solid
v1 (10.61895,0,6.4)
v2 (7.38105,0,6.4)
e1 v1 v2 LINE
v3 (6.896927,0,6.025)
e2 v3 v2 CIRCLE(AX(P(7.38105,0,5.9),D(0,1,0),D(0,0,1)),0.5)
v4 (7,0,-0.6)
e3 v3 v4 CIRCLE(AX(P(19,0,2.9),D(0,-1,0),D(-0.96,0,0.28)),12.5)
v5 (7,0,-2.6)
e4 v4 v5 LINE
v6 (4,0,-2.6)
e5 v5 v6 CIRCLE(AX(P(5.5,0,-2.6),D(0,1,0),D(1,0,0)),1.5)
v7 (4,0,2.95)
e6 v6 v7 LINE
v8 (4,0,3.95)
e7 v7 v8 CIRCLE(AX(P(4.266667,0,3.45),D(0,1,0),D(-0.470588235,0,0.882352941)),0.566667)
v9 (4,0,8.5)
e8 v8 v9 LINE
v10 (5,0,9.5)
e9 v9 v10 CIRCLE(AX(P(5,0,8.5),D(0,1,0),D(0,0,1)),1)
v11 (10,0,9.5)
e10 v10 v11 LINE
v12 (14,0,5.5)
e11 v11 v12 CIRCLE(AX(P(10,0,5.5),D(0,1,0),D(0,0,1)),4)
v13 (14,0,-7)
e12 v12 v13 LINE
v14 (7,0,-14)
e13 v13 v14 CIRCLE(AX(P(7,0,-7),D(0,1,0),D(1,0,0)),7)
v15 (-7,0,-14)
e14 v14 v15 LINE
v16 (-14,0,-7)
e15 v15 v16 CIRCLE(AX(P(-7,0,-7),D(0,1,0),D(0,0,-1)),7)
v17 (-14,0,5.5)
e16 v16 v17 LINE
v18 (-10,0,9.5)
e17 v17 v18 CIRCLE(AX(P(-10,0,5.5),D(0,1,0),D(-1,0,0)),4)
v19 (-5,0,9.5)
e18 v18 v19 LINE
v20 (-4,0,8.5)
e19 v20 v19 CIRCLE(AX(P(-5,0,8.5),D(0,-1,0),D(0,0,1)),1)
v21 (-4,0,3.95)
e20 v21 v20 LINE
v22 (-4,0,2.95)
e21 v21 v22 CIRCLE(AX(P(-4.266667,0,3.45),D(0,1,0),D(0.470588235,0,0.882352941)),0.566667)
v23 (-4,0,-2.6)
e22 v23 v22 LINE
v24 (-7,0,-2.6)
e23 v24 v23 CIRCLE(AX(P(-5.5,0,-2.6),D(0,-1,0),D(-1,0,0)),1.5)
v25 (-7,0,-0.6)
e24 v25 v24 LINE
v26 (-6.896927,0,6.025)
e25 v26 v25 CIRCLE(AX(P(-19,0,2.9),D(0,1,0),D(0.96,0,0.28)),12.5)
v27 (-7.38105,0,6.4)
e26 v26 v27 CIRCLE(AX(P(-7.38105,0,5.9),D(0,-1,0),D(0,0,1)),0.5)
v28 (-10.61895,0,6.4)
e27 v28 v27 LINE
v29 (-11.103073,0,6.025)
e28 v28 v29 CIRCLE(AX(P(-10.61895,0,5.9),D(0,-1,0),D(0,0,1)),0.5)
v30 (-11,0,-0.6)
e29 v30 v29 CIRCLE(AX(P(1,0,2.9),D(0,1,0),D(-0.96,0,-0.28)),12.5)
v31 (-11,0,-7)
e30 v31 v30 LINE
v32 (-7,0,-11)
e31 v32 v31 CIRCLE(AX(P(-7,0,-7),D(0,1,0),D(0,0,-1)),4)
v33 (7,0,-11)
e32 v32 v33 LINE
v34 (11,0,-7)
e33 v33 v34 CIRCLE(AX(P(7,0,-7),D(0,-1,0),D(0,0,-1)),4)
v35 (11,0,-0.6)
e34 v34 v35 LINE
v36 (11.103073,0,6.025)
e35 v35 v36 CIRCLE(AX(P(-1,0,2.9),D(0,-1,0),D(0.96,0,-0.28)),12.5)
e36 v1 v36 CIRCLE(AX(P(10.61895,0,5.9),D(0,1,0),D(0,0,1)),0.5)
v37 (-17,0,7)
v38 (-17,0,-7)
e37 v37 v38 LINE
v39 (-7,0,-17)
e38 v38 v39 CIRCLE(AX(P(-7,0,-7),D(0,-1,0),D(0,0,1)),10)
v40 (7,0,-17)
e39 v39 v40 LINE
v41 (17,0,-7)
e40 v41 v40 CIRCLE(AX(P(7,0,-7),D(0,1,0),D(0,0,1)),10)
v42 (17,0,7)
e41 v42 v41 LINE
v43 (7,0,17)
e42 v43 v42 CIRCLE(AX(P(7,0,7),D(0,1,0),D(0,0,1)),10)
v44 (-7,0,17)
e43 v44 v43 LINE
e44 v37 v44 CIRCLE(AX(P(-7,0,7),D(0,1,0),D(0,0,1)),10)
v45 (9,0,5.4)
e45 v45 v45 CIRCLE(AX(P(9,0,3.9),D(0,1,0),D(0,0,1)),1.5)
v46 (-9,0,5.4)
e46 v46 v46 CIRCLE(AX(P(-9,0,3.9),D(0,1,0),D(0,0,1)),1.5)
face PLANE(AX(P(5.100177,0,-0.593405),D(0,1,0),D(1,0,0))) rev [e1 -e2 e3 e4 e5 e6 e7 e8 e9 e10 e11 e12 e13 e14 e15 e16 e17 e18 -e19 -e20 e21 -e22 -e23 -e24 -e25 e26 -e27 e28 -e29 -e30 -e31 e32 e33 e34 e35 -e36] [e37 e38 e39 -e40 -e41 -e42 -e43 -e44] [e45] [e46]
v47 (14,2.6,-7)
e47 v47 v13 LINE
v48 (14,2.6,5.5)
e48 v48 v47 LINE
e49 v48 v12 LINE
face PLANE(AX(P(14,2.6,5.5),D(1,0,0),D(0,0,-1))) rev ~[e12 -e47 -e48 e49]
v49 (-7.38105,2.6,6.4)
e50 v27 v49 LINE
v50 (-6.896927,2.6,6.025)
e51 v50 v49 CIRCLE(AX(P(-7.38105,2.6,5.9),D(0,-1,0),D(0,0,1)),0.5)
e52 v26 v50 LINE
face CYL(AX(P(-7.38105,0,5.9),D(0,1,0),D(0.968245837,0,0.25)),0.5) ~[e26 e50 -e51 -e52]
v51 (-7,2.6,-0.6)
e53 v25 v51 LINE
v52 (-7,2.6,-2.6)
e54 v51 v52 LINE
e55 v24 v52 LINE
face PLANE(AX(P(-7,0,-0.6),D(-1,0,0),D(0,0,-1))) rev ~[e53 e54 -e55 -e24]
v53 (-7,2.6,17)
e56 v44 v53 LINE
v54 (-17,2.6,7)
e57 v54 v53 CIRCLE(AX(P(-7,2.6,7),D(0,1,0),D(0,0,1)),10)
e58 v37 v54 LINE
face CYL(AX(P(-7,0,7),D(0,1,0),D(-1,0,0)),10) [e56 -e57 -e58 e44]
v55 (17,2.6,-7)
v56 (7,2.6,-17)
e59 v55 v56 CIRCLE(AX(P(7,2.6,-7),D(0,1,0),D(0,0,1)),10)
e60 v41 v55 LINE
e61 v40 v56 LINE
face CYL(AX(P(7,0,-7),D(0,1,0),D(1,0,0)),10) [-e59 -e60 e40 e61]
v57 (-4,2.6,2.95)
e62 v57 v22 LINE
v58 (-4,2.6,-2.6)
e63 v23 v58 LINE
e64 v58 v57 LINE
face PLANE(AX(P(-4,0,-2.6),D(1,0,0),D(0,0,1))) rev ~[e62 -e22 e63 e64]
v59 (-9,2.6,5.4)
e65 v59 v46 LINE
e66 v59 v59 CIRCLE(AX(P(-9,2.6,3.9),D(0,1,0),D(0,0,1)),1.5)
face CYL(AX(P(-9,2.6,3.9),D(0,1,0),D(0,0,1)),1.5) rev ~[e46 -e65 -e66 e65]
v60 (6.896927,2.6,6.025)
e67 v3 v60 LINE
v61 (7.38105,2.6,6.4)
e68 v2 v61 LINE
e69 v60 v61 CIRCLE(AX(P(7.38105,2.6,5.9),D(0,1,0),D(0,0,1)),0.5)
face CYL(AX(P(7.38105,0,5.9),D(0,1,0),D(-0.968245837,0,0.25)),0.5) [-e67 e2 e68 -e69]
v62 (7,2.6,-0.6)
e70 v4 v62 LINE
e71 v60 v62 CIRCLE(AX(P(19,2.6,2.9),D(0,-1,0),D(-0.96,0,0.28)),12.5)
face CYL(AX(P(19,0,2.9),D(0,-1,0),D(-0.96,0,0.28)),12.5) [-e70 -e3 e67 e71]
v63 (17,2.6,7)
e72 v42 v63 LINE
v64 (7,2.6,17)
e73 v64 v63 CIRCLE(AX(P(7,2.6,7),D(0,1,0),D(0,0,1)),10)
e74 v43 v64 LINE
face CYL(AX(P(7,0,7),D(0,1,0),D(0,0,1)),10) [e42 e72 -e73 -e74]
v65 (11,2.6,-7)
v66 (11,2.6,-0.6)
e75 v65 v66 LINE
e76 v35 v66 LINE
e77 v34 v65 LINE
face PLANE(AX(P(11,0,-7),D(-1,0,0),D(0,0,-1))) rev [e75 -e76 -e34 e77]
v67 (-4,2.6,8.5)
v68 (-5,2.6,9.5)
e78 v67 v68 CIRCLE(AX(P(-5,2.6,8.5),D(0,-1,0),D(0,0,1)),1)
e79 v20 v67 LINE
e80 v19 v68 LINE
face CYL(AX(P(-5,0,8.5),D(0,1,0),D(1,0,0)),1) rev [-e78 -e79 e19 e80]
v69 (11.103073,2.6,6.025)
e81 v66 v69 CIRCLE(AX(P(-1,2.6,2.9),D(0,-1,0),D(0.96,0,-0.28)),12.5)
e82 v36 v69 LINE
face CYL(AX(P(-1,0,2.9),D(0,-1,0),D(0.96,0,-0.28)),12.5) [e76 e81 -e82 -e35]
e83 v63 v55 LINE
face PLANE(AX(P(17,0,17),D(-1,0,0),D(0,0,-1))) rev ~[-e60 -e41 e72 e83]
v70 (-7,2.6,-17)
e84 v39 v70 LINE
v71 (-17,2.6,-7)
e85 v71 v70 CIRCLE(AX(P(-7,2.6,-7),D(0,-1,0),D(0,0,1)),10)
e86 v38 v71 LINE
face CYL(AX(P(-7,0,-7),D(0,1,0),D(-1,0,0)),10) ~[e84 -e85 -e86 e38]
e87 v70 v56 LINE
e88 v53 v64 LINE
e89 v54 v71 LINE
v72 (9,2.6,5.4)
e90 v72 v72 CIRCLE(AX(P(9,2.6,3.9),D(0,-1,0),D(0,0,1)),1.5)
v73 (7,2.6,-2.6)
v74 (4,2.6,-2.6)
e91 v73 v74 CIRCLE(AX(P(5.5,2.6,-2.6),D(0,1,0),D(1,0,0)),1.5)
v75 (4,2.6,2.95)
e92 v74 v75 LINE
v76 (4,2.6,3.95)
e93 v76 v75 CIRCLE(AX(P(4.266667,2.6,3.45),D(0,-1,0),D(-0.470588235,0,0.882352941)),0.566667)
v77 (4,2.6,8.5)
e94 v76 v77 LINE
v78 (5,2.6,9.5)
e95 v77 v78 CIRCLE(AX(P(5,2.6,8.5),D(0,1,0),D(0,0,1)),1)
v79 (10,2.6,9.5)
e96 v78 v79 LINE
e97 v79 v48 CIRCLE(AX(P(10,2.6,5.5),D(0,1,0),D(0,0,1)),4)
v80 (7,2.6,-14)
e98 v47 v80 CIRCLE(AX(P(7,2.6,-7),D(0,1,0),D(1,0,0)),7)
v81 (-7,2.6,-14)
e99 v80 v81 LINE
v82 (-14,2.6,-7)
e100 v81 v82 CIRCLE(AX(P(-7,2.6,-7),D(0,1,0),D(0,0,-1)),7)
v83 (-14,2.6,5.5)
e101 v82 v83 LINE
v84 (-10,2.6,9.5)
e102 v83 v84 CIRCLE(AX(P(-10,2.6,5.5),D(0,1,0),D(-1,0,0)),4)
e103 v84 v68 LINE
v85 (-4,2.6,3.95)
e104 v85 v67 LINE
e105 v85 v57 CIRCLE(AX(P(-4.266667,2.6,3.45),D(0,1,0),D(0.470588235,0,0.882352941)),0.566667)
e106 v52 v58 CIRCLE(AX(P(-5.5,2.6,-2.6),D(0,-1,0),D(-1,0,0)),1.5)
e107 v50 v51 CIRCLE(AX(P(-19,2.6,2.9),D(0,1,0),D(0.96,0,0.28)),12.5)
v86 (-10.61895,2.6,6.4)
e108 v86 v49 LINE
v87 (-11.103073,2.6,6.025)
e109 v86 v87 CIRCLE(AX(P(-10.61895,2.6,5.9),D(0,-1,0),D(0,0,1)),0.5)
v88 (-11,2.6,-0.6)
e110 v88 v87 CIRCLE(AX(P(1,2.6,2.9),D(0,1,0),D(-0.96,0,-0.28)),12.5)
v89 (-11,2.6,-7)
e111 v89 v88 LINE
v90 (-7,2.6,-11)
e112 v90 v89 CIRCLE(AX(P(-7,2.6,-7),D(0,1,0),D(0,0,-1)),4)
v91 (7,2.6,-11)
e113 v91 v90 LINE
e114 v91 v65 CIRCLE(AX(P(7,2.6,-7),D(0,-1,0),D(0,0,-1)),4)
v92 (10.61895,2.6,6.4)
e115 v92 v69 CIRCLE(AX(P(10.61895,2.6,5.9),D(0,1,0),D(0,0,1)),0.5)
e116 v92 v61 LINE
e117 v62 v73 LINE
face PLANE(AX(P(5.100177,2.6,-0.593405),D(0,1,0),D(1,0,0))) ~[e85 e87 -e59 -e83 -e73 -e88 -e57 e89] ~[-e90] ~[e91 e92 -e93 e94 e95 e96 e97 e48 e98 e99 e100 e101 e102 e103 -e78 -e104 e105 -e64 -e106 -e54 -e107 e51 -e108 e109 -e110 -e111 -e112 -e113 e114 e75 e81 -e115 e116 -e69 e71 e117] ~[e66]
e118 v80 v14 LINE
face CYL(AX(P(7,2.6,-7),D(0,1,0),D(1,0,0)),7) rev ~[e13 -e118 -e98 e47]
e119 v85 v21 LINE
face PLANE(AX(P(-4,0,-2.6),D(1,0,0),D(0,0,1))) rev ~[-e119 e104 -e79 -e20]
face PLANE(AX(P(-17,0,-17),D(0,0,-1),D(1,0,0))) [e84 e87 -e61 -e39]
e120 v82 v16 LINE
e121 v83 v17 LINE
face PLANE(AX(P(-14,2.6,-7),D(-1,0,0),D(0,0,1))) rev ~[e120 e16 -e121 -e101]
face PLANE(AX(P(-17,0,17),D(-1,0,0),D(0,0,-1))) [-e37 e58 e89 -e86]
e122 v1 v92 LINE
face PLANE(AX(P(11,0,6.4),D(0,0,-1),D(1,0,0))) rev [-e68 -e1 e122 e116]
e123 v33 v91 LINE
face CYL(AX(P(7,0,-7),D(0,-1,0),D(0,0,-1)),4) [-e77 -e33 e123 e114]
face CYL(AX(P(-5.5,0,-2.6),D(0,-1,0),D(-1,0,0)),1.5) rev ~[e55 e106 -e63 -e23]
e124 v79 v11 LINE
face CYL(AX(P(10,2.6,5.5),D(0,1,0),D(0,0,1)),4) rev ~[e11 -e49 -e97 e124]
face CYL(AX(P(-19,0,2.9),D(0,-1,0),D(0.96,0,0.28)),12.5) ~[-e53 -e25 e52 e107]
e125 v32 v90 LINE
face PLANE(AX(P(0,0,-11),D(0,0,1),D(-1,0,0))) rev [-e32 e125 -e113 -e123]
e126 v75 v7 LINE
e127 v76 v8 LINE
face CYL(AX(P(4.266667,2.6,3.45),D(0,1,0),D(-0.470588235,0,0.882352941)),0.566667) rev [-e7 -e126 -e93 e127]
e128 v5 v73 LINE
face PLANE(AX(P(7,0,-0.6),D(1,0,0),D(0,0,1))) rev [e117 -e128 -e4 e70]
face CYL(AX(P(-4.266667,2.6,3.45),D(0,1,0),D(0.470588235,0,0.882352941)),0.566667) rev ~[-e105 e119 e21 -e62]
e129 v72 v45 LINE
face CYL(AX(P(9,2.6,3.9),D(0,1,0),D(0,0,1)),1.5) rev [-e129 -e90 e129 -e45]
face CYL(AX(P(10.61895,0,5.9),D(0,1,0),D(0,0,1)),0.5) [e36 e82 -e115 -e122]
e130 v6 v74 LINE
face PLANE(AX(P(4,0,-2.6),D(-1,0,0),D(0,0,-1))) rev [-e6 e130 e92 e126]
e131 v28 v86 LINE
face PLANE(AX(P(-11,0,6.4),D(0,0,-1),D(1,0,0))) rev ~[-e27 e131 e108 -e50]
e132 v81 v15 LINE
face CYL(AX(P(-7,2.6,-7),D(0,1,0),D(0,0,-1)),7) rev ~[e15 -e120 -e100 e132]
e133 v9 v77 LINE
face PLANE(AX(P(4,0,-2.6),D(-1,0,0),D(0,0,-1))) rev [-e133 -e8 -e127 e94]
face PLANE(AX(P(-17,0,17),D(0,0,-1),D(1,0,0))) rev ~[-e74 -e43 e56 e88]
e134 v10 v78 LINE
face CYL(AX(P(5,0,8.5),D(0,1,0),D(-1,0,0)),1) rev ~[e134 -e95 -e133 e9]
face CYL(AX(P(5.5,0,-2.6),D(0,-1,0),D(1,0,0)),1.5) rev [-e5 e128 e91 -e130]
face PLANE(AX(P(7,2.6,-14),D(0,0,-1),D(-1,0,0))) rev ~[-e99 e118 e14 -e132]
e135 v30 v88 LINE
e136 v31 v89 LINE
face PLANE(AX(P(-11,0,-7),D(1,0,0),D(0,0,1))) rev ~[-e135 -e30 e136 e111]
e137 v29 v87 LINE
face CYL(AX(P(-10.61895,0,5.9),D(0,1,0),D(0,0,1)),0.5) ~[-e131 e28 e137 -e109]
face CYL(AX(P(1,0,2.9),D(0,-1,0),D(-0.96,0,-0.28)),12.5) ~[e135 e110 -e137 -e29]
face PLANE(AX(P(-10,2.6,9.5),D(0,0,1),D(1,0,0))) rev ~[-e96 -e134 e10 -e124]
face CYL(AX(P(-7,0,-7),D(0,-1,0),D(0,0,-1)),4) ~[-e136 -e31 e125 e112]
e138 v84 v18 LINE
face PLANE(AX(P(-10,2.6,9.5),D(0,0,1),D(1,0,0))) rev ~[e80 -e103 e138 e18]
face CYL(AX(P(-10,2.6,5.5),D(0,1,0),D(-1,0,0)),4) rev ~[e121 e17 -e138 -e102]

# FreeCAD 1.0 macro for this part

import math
import FreeCAD as App
import Part
import Sketcher

V = App.Vector


def edges_at(feature, points):
    """Names of the edges that pass closest to the given points."""
    edges = feature.Shape.Edges
    near = lambda p: min(range(len(edges)), key=lambda i: edges[i].distToShape(Part.Vertex(*p))[0])
    return sorted({f"Edge{near(p) + 1}" for p in points})


def add_polygon(sketch, points):
    """Adds a closed chain of lines whose ends are joined by coincident constraints."""
    first, n = sketch.GeometryCount, len(points)
    for a, b in zip(points, points[1:] + points[:1]):
        sketch.addGeometry(Part.LineSegment(App.Vector(*a, 0), App.Vector(*b, 0)), False)
    for i in range(n):
        sketch.addConstraint(Sketcher.Constraint("Coincident", first + i, 2, first + (i + 1) % n, 1))

doc = App.newDocument("Part")
body = doc.addObject("PartDesign::Body", "Body")

sketch1 = body.newObject("Sketcher::SketchObject", "Sketch")
sketch1.AttachmentSupport = (doc.getObject("XZ_Plane"), [""])
sketch1.MapMode = "FlatFace"
add_polygon(sketch1, [(-17, -17), (-17, 17), (17, 17), (17, -17)])
sketch1.addConstraint([
    Sketcher.Constraint("Vertical", 0),
    Sketcher.Constraint("Horizontal", 1),
    Sketcher.Constraint("Vertical", 2),
    Sketcher.Constraint("Horizontal", 3),
    Sketcher.Constraint("Symmetric", 0, 2, 2, 2, -1, 1),
    Sketcher.Constraint("Equal", 3, 0),
    Sketcher.Constraint("DistanceX", 1, 1, 1, 2, 34.0),
])
pad1 = body.newObject("PartDesign::Pad", "Pad")
pad1.Profile = sketch1
pad1.Length = 2.6
pad1.Reversed = True
doc.recompute()

fillet = body.newObject("PartDesign::Fillet", "Fillet")
fillet.Base = (pad1, edges_at(pad1, [
    (17, 1.3, 17),
    (-17, 1.3, 17),
    (-17, 1.3, -17),
    (17, 1.3, -17),
]))
fillet.Radius = 10

sketch2 = body.newObject("Sketcher::SketchObject", "Sketch001")
sketch2.AttachmentSupport = (doc.getObject("XZ_Plane"), [""])
sketch2.MapMode = "FlatFace"
sketch2.AttachmentOffset = App.Placement(V(0, 0, -2.6), App.Rotation())
sketch2.addGeometry([
    Part.LineSegment(V(-10, 9.5, 0), V(10, 9.5, 0)),
    Part.ArcOfCircle(Part.Circle(V(10, 5.5, 0), V(0, 0, 1), 4), math.radians(0), math.radians(90)),
    Part.LineSegment(V(14, 5.5, 0), V(14, -7, 0)),
    Part.ArcOfCircle(Part.Circle(V(7, -7, 0), V(0, 0, 1), 7), math.radians(-90), math.radians(0)),
    Part.LineSegment(V(7, -14, 0), V(-7, -14, 0)),
    Part.ArcOfCircle(Part.Circle(V(-7, -7, 0), V(0, 0, 1), 7), math.radians(-180), math.radians(-90)),
    Part.LineSegment(V(-14, -7, 0), V(-14, 5.5, 0)),
    Part.ArcOfCircle(Part.Circle(V(-10, 5.5, 0), V(0, 0, 1), 4), math.radians(90), math.radians(180)),
], False)
sketch2.addConstraint([
    Sketcher.Constraint("Tangent", 0, 2, 1, 2),
    Sketcher.Constraint("Tangent", 1, 1, 2, 1),
    Sketcher.Constraint("Tangent", 2, 2, 3, 2),
    Sketcher.Constraint("Tangent", 3, 1, 4, 1),
    Sketcher.Constraint("Tangent", 4, 2, 5, 2),
    Sketcher.Constraint("Tangent", 5, 1, 6, 1),
    Sketcher.Constraint("Tangent", 6, 2, 7, 2),
    Sketcher.Constraint("Tangent", 7, 1, 0, 1),
    Sketcher.Constraint("Horizontal", 0),
    Sketcher.Constraint("Vertical", 2),
    Sketcher.Constraint("Horizontal", 4),
    Sketcher.Constraint("Vertical", 6),
    Sketcher.Constraint("Equal", 3, 5),
    Sketcher.Constraint("Equal", 1, 7),
    Sketcher.Constraint("Radius", 1, 4.0),
    Sketcher.Constraint("Radius", 3, 7.0),
    Sketcher.Constraint("DistanceX", 0, 1, 0, 2, 20.0),
    Sketcher.Constraint("DistanceY", 2, 2, 2, 1, 12.5),
    Sketcher.Constraint("DistanceX", -1, 1, 1, 3, 10.0),
    Sketcher.Constraint("DistanceY", 3, 3, -1, 1, 7.0),
])
pocket1 = body.newObject("PartDesign::Pocket", "Pocket")
pocket1.Profile = sketch2
pocket1.Type = "ThroughAll"
pocket1.Reversed = True

sketch3 = body.newObject("Sketcher::SketchObject", "Sketch002")
sketch3.AttachmentSupport = (doc.getObject("XZ_Plane"), [""])
sketch3.MapMode = "FlatFace"
sketch3.addGeometry([
    Part.LineSegment(V(-4, -2.6, 0), V(-4, 9.5, 0)),
    Part.LineSegment(V(-4, 9.5, 0), V(0, 9.5, 0)),
    Part.LineSegment(V(0, 9.5, 0), V(0, -11, 0)),
    Part.LineSegment(V(0, -11, 0), V(-7, -11, 0)),
    Part.ArcOfCircle(Part.Circle(V(-7, -7, 0), V(0, 0, 1), 4), math.radians(180), math.radians(270)),
    Part.LineSegment(V(-11, -7, 0), V(-11, -0.6, 0)),
    Part.ArcOfCircle(Part.Circle(V(1, 2.9, 0), V(0, 0, 1), 12.5), math.radians(164), math.radians(196)),
    Part.LineSegment(V(-11, 6.4, 0), V(-7, 6.4, 0)),
    Part.ArcOfCircle(Part.Circle(V(-19, 2.9, 0), V(0, 0, 1), 12.5), math.radians(-16), math.radians(16)),
    Part.LineSegment(V(-7, -0.6, 0), V(-7, -2.6, 0)),
    Part.ArcOfCircle(Part.Circle(V(-5.5, -2.6, 0), V(0, 0, 1), 1.5), math.radians(180), math.radians(360)),
], False)
sketch3.addConstraint([
    Sketcher.Constraint("Coincident", 0, 2, 1, 1),
    Sketcher.Constraint("Coincident", 1, 2, 2, 1),
    Sketcher.Constraint("Coincident", 2, 2, 3, 1),
    Sketcher.Constraint("Tangent", 3, 2, 4, 2),
    Sketcher.Constraint("Tangent", 4, 1, 5, 1),
    Sketcher.Constraint("Coincident", 5, 2, 6, 2),
    Sketcher.Constraint("Coincident", 6, 1, 7, 1),
    Sketcher.Constraint("Coincident", 7, 2, 8, 2),
    Sketcher.Constraint("Coincident", 8, 1, 9, 1),
    Sketcher.Constraint("Tangent", 9, 2, 10, 1),
    Sketcher.Constraint("Tangent", 10, 2, 0, 1),
    Sketcher.Constraint("Vertical", 0),
    Sketcher.Constraint("Horizontal", 1),
    Sketcher.Constraint("Vertical", 2),
    Sketcher.Constraint("Horizontal", 3),
    Sketcher.Constraint("Vertical", 5),
    Sketcher.Constraint("Horizontal", 7),
    Sketcher.Constraint("Vertical", 9),
    Sketcher.Constraint("Equal", 6, 8),
    Sketcher.Constraint("PointOnObject", 1, 2, -2),
    Sketcher.Constraint("Horizontal", 6, 3, 8, 3),
    Sketcher.Constraint("Horizontal", 5, 2, 8, 1),
    Sketcher.Constraint("Vertical", 5, 2, 6, 1),
    Sketcher.Constraint("Vertical", 3, 2, 7, 2),
    Sketcher.Constraint("Equal", 1, 7),
    Sketcher.Constraint("Radius", 4, 4.0),
    Sketcher.Constraint("Radius", 6, 12.5),
    Sketcher.Constraint("Radius", 10, 1.5),
    Sketcher.Constraint("DistanceY", 9, 2, 9, 1, 2.0),
    Sketcher.Constraint("DistanceY", 0, 1, 0, 2, 12.1),
    Sketcher.Constraint("DistanceY", 2, 2, 2, 1, 20.5),
    Sketcher.Constraint("DistanceY", 4, 3, -1, 1, 7.0),
    Sketcher.Constraint("DistanceX", -1, 1, 6, 3, 1.0),
])
pad2 = body.newObject("PartDesign::Pad", "Pad001")
pad2.Profile = sketch3
pad2.Length = 2.6
pad2.Reversed = True

sketch4 = body.newObject("Sketcher::SketchObject", "Sketch003")
sketch4.AttachmentSupport = (doc.getObject("XZ_Plane"), [""])
sketch4.MapMode = "FlatFace"
sketch4.AttachmentOffset = App.Placement(V(0, 0, -2.6), App.Rotation())
sketch4.addGeometry(Part.Circle(V(-9, 3.9, 0), V(0, 0, 1), 1.5), False)
sketch4.addConstraint([
    Sketcher.Constraint("Diameter", 0, 3.0),
    Sketcher.Constraint("DistanceX", 0, 3, -1, 1, 9.0),
    Sketcher.Constraint("DistanceY", -1, 1, 0, 3, 3.9),
])
pocket2 = body.newObject("PartDesign::Pocket", "Pocket001")
pocket2.Profile = sketch4
pocket2.Type = "ThroughAll"
pocket2.Reversed = True

sketch5 = body.newObject("Sketcher::SketchObject", "Sketch004")
sketch5.AttachmentSupport = (doc.getObject("XZ_Plane"), [""])
sketch5.MapMode = "FlatFace"
sketch5.AttachmentOffset = App.Placement(V(0, 0, -2.6), App.Rotation())
sketch5.addGeometry([
    Part.LineSegment(V(-4, 3, 0), V(-4, 4, 0)),
    Part.ArcOfCircle(Part.Circle(V(-4.3, 3.5, 0), V(0, 0, 1), 0.6), math.radians(-62), math.radians(62)),
], False)
sketch5.addConstraint([
    Sketcher.Constraint("Coincident", 0, 1, 1, 1),
    Sketcher.Constraint("Coincident", 1, 2, 0, 2),
    Sketcher.Constraint("Vertical", 0),
    Sketcher.Constraint("DistanceY", 0, 1, 0, 2, 1.0),
    Sketcher.Constraint("DistanceX", 0, 1, -1, 1, 4.0),
    Sketcher.Constraint("DistanceY", -1, 1, 1, 3, 3.45),
    Sketcher.Constraint("Radius", 1, 0.566667),
])
pocket3 = body.newObject("PartDesign::Pocket", "Pocket002")
pocket3.Profile = sketch5
pocket3.Type = "ThroughAll"
pocket3.Reversed = True
doc.recompute()

fillet2 = body.newObject("PartDesign::Fillet", "Fillet001")
fillet2.Base = (pocket3, edges_at(pocket3, [(-11, 1.3, 6.4), (-7, 1.3, 6.4)]))
fillet2.Radius = 0.5
doc.recompute()

fillet3 = body.newObject("PartDesign::Fillet", "Fillet002")
fillet3.Base = (fillet2, edges_at(fillet2, [(-4, 1.3, 9.5)]))
fillet3.Radius = 1
doc.recompute()

mirrored = body.newObject("PartDesign::Mirrored", "Mirrored")
mirrored.Originals = [pad2, pocket2, pocket3]
mirrored.MirrorPlane = (doc.getObject("YZ_Plane"), [""])
body.Tip = mirrored
doc.recompute()

fillet4 = body.newObject("PartDesign::Fillet", "Fillet003")
fillet4.Base = (mirrored, edges_at(mirrored, [(11, 1.3, 6.4), (7, 1.3, 6.4)]))
fillet4.Radius = 0.5
doc.recompute()

fillet5 = body.newObject("PartDesign::Fillet", "Fillet004")
fillet5.Base = (fillet4, edges_at(fillet4, [(4, 1.3, 9.5)]))
fillet5.Radius = 1

doc.recompute()
